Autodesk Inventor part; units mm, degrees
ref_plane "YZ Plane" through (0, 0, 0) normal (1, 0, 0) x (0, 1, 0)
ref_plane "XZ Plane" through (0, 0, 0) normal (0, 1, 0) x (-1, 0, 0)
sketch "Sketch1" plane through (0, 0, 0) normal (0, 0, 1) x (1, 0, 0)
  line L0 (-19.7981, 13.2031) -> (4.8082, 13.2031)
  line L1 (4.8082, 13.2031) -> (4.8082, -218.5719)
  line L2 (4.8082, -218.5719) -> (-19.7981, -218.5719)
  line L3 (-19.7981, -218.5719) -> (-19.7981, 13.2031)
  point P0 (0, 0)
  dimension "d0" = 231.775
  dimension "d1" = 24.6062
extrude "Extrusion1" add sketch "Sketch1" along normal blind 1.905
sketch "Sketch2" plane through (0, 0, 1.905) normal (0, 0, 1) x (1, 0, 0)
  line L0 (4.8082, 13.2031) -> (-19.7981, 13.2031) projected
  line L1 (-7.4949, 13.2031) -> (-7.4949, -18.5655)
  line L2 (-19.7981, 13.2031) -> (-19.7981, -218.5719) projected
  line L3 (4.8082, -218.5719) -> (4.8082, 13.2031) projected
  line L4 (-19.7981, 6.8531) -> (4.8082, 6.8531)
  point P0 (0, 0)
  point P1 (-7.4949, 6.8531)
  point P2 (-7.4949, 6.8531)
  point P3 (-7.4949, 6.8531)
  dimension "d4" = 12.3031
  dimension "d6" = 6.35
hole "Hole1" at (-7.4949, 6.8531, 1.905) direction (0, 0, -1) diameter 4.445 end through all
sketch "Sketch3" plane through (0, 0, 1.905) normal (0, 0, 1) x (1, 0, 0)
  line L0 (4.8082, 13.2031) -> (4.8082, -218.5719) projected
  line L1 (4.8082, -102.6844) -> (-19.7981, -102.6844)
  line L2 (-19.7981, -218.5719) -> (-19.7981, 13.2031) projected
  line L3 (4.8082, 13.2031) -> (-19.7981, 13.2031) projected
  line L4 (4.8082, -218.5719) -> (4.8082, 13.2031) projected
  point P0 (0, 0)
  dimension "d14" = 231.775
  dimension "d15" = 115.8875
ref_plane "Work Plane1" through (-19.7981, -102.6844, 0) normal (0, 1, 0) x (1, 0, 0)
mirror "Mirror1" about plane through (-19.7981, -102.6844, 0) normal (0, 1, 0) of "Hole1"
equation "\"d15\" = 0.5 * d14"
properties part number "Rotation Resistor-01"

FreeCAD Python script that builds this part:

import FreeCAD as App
import Part
import Sketcher

V = App.Vector
Q = App.Units.Quantity

doc = App.newDocument("Part")
body = doc.addObject("PartDesign::Body", "Body")

# Sketch on XY plane
sketch1 = body.newObject("Sketcher::SketchObject", "Sketch")
sketch1.AttachmentSupport = (doc.getObject("XY_Plane"), [""])
sketch1.MapMode = "FlatFace"
sketch1.addGeometry(Part.LineSegment(V(5, 13, 0), V(-20, 13, 0)), False)
sketch1.addGeometry(Part.LineSegment(V(-20, 13, 0), V(-20, -219, 0)), False)
sketch1.addGeometry(Part.LineSegment(V(-20, -219, 0), V(5, -219, 0)), False)
sketch1.addGeometry(Part.LineSegment(V(5, -219, 0), V(5, 13, 0)), False)
sketch1.addConstraint(Sketcher.Constraint("Coincident", 0, 2, 1, 1))
sketch1.addConstraint(Sketcher.Constraint("Coincident", 1, 2, 2, 1))
sketch1.addConstraint(Sketcher.Constraint("Coincident", 2, 2, 3, 1))
sketch1.addConstraint(Sketcher.Constraint("Coincident", 3, 2, 0, 1))
sketch1.addConstraint(Sketcher.Constraint("Horizontal", 0))
sketch1.addConstraint(Sketcher.Constraint("Vertical", 1))
sketch1.addConstraint(Sketcher.Constraint("Horizontal", 2))
sketch1.addConstraint(Sketcher.Constraint("Vertical", 3))
sketch1.addConstraint(Sketcher.Constraint("DistanceX", 0, 2, 0, 1, Q("0.968752 in")))
sketch1.addConstraint(Sketcher.Constraint("DistanceY", 1, 2, 1, 1, Q("9.125 in")))
sketch1.addConstraint(Sketcher.Constraint("DistanceY", -1, 1, 0, 2, Q("0.5198 in")))
sketch1.addConstraint(Sketcher.Constraint("DistanceX", -1, 1, 2, 2, Q("0.1893 in")))
pad1 = body.newObject("PartDesign::Pad", "Pad")
pad1.Profile = sketch1
pad1.Length = Q("0.075 in")

# Sketch on XY plane
sketch2 = body.newObject("Sketcher::SketchObject", "Sketch001")
sketch2.AttachmentSupport = (doc.getObject("XY_Plane"), [""])
sketch2.MapMode = "FlatFace"
sketch2.AttachmentOffset = App.Placement(V(0, 0, 0.075 * 25.4), App.Rotation())
sketch2.addGeometry(Part.Circle(V(-7.5, 6.9, 0), V(0, 0, 1), 2.2), False)
sketch2.addConstraint(Sketcher.Constraint("Diameter", 0, Q("0.175 in")))
sketch2.addConstraint(Sketcher.Constraint("DistanceY", -1, 1, 0, 3, Q("0.2698 in")))
sketch2.addConstraint(Sketcher.Constraint("DistanceX", 0, 3, -1, 1, 7.495))
doc.recompute()
hole = body.newObject("PartDesign::Hole", "Hole")
hole.Profile = sketch2
hole.ThreadType = "None"
hole.Diameter = Q("0.175 in")
hole.DepthType = "ThroughAll"
doc.recompute()

datumplane = body.newObject("PartDesign::Plane", "DatumPlane")
datumplane.AttachmentSupport = (doc.getObject("XZ_Plane"), [""])
datumplane.MapMode = "FlatFace"
datumplane.AttachmentOffset = App.Placement(V(0, 0, 4.0426929 * 25.4), App.Rotation())
mirrored = body.newObject("PartDesign::Mirrored", "Mirrored")
mirrored.Originals = [hole]
mirrored.MirrorPlane = (datumplane, [""])
body.Tip = mirrored

doc.recompute()
